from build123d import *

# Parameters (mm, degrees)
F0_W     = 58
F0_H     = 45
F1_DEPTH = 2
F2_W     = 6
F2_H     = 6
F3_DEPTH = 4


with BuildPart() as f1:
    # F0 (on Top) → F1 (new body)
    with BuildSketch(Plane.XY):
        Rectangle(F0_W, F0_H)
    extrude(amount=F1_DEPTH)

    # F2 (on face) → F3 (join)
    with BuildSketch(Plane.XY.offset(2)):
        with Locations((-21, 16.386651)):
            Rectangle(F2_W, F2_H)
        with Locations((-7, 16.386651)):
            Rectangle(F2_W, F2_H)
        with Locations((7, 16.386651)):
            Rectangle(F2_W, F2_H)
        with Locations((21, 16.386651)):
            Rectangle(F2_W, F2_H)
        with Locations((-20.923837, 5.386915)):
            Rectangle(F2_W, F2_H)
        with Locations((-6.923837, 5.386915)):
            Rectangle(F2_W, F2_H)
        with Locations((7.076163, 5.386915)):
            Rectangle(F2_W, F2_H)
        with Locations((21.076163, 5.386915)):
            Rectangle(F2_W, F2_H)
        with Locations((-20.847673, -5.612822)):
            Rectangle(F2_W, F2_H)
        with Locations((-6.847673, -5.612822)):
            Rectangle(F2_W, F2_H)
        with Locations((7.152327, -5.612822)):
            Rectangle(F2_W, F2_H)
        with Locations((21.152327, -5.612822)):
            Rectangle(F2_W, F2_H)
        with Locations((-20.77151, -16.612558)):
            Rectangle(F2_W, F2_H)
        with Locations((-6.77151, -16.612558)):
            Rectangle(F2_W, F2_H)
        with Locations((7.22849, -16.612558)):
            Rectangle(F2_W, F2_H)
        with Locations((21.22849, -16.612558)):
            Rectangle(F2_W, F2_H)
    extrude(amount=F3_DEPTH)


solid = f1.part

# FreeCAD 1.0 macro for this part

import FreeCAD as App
import Part
import Sketcher
from FreeCAD import Vector


def add_polygon(sketch, points):
    """Adds a closed chain of lines whose ends are joined by coincident constraints."""
    first, n = sketch.GeometryCount, len(points)
    for a, b in zip(points, points[1:] + points[:1]):
        sketch.addGeometry(Part.LineSegment(App.Vector(*a, 0), App.Vector(*b, 0)), False)
    for i in range(n):
        sketch.addConstraint(Sketcher.Constraint("Coincident", first + i, 2, first + (i + 1) % n, 1))

doc = App.newDocument("Part")
body = doc.addObject("PartDesign::Body", "Body")

# Sketch on XY plane
sketch1 = doc.addObject("Sketcher::SketchObject", "Sketch")
body.addObject(sketch1)
sketch1.AttachmentSupport = (doc.XY_Plane, [""])
sketch1.MapMode = "FlatFace"
add_polygon(sketch1, [(-29, 22), (-29, -22), (29, -22), (29, 22)])  # lines 0-3
sketch1.addConstraint(Sketcher.Constraint("Vertical", 0))
sketch1.addConstraint(Sketcher.Constraint("Horizontal", 1))
sketch1.addConstraint(Sketcher.Constraint("Vertical", 2))
sketch1.addConstraint(Sketcher.Constraint("Horizontal", 3))
sketch1.addConstraint(Sketcher.Constraint("Symmetric", 0, 2, 2, 2, -1, 1))
sketch1.addConstraint(Sketcher.Constraint("DistanceX", 1, 1, 1, 2, 58.0))
sketch1.addConstraint(Sketcher.Constraint("DistanceY", 0, 2, 0, 1, 45.0))
pad1 = doc.addObject("PartDesign::Pad", "Pad")
body.addObject(pad1)
pad1.Profile = sketch1
pad1.Length = 2

# Sketch on XY plane
sketch2 = doc.addObject("Sketcher::SketchObject", "Sketch001")
body.addObject(sketch2)
sketch2.AttachmentSupport = (doc.XY_Plane, [""])
sketch2.MapMode = "FlatFace"
sketch2.AttachmentOffset = App.Placement(Vector(0, 0, 2), App.Rotation())
add_polygon(sketch2, [(-24, 19), (-24, 13), (-18, 13), (-18, 19)])  # lines 0-3
add_polygon(sketch2, [(-10, 19), (-10, 13), (-4, 13), (-4, 19)])  # lines 4-7
add_polygon(sketch2, [(4, 19), (4, 13), (10, 13), (10, 19)])  # lines 8-11
add_polygon(sketch2, [(18, 19), (18, 13), (24, 13), (24, 19)])  # lines 12-15
add_polygon(sketch2, [(-24, 8), (-24, 2), (-18, 2), (-18, 8)])  # lines 16-19
add_polygon(sketch2, [(-10, 8), (-10, 2), (-4, 2), (-4, 8)])  # lines 20-23
add_polygon(sketch2, [(4, 8), (4, 2), (10, 2), (10, 8)])  # lines 24-27
add_polygon(sketch2, [(18, 8), (18, 2), (24, 2), (24, 8)])  # lines 28-31
add_polygon(sketch2, [(-24, -3), (-24, -9), (-18, -9), (-18, -3)])  # lines 32-35
add_polygon(sketch2, [(-10, -3), (-10, -9), (-4, -9), (-4, -3)])  # lines 36-39
add_polygon(sketch2, [(4, -3), (4, -9), (10, -9), (10, -3)])  # lines 40-43
add_polygon(sketch2, [(18, -3), (18, -9), (24, -9), (24, -3)])  # lines 44-47
add_polygon(sketch2, [(-24, -14), (-24, -20), (-18, -20), (-18, -14)])  # lines 48-51
add_polygon(sketch2, [(-10, -14), (-10, -20), (-4, -20), (-4, -14)])  # lines 52-55
add_polygon(sketch2, [(4, -14), (4, -20), (10, -20), (10, -14)])  # lines 56-59
add_polygon(sketch2, [(18, -14), (18, -20), (24, -20), (24, -14)])  # lines 60-63
sketch2.addConstraint(Sketcher.Constraint("Vertical", 0))
sketch2.addConstraint(Sketcher.Constraint("Horizontal", 1))
sketch2.addConstraint(Sketcher.Constraint("Vertical", 2))
sketch2.addConstraint(Sketcher.Constraint("Horizontal", 3))
sketch2.addConstraint(Sketcher.Constraint("Vertical", 4))
sketch2.addConstraint(Sketcher.Constraint("Horizontal", 5))
sketch2.addConstraint(Sketcher.Constraint("Vertical", 6))
sketch2.addConstraint(Sketcher.Constraint("Horizontal", 7))
sketch2.addConstraint(Sketcher.Constraint("Vertical", 8))
sketch2.addConstraint(Sketcher.Constraint("Horizontal", 9))
sketch2.addConstraint(Sketcher.Constraint("Vertical", 10))
sketch2.addConstraint(Sketcher.Constraint("Horizontal", 11))
sketch2.addConstraint(Sketcher.Constraint("Vertical", 12))
sketch2.addConstraint(Sketcher.Constraint("Horizontal", 13))
sketch2.addConstraint(Sketcher.Constraint("Vertical", 14))
sketch2.addConstraint(Sketcher.Constraint("Horizontal", 15))
sketch2.addConstraint(Sketcher.Constraint("Vertical", 16))
sketch2.addConstraint(Sketcher.Constraint("Horizontal", 17))
sketch2.addConstraint(Sketcher.Constraint("Vertical", 18))
sketch2.addConstraint(Sketcher.Constraint("Horizontal", 19))
sketch2.addConstraint(Sketcher.Constraint("Vertical", 20))
sketch2.addConstraint(Sketcher.Constraint("Horizontal", 21))
sketch2.addConstraint(Sketcher.Constraint("Vertical", 22))
sketch2.addConstraint(Sketcher.Constraint("Horizontal", 23))
sketch2.addConstraint(Sketcher.Constraint("Vertical", 24))
sketch2.addConstraint(Sketcher.Constraint("Horizontal", 25))
sketch2.addConstraint(Sketcher.Constraint("Vertical", 26))
sketch2.addConstraint(Sketcher.Constraint("Horizontal", 27))
sketch2.addConstraint(Sketcher.Constraint("Vertical", 28))
sketch2.addConstraint(Sketcher.Constraint("Horizontal", 29))
sketch2.addConstraint(Sketcher.Constraint("Vertical", 30))
sketch2.addConstraint(Sketcher.Constraint("Horizontal", 31))
sketch2.addConstraint(Sketcher.Constraint("Vertical", 32))
sketch2.addConstraint(Sketcher.Constraint("Horizontal", 33))
sketch2.addConstraint(Sketcher.Constraint("Vertical", 34))
sketch2.addConstraint(Sketcher.Constraint("Horizontal", 35))
sketch2.addConstraint(Sketcher.Constraint("Vertical", 36))
sketch2.addConstraint(Sketcher.Constraint("Horizontal", 37))
sketch2.addConstraint(Sketcher.Constraint("Vertical", 38))
sketch2.addConstraint(Sketcher.Constraint("Horizontal", 39))
sketch2.addConstraint(Sketcher.Constraint("Vertical", 40))
sketch2.addConstraint(Sketcher.Constraint("Horizontal", 41))
sketch2.addConstraint(Sketcher.Constraint("Vertical", 42))
sketch2.addConstraint(Sketcher.Constraint("Horizontal", 43))
sketch2.addConstraint(Sketcher.Constraint("Vertical", 44))
sketch2.addConstraint(Sketcher.Constraint("Horizontal", 45))
sketch2.addConstraint(Sketcher.Constraint("Vertical", 46))
sketch2.addConstraint(Sketcher.Constraint("Horizontal", 47))
sketch2.addConstraint(Sketcher.Constraint("Vertical", 48))
sketch2.addConstraint(Sketcher.Constraint("Horizontal", 49))
sketch2.addConstraint(Sketcher.Constraint("Vertical", 50))
sketch2.addConstraint(Sketcher.Constraint("Horizontal", 51))
sketch2.addConstraint(Sketcher.Constraint("Vertical", 52))
sketch2.addConstraint(Sketcher.Constraint("Horizontal", 53))
sketch2.addConstraint(Sketcher.Constraint("Vertical", 54))
sketch2.addConstraint(Sketcher.Constraint("Horizontal", 55))
sketch2.addConstraint(Sketcher.Constraint("Vertical", 56))
sketch2.addConstraint(Sketcher.Constraint("Horizontal", 57))
sketch2.addConstraint(Sketcher.Constraint("Vertical", 58))
sketch2.addConstraint(Sketcher.Constraint("Horizontal", 59))
sketch2.addConstraint(Sketcher.Constraint("Vertical", 60))
sketch2.addConstraint(Sketcher.Constraint("Horizontal", 61))
sketch2.addConstraint(Sketcher.Constraint("Vertical", 62))
sketch2.addConstraint(Sketcher.Constraint("Horizontal", 63))
sketch2.addConstraint(Sketcher.Constraint("Symmetric", 5, 2, 8, 2, -2))
sketch2.addConstraint(Sketcher.Constraint("Symmetric", 7, 2, 10, 2, -2))
sketch2.addConstraint(Sketcher.Constraint("Symmetric", 1, 2, 12, 2, -2))
sketch2.addConstraint(Sketcher.Constraint("Symmetric", 3, 2, 14, 2, -2))
sketch2.addConstraint(Sketcher.Constraint("Horizontal", 1, 2, 4, 2))
sketch2.addConstraint(Sketcher.Constraint("Horizontal", 3, 2, 6, 2))
sketch2.addConstraint(Sketcher.Constraint("Horizontal", 17, 2, 20, 2))
sketch2.addConstraint(Sketcher.Constraint("Horizontal", 19, 2, 22, 2))
sketch2.addConstraint(Sketcher.Constraint("Horizontal", 21, 2, 24, 2))
sketch2.addConstraint(Sketcher.Constraint("Horizontal", 23, 2, 26, 2))
sketch2.addConstraint(Sketcher.Constraint("Horizontal", 25, 2, 28, 2))
sketch2.addConstraint(Sketcher.Constraint("Horizontal", 27, 2, 30, 2))
sketch2.addConstraint(Sketcher.Constraint("Horizontal", 33, 2, 36, 2))
sketch2.addConstraint(Sketcher.Constraint("Horizontal", 35, 2, 38, 2))
sketch2.addConstraint(Sketcher.Constraint("Horizontal", 37, 2, 40, 2))
sketch2.addConstraint(Sketcher.Constraint("Horizontal", 39, 2, 42, 2))
sketch2.addConstraint(Sketcher.Constraint("Horizontal", 41, 2, 44, 2))
sketch2.addConstraint(Sketcher.Constraint("Horizontal", 43, 2, 46, 2))
sketch2.addConstraint(Sketcher.Constraint("Horizontal", 49, 2, 52, 2))
sketch2.addConstraint(Sketcher.Constraint("Horizontal", 51, 2, 54, 2))
sketch2.addConstraint(Sketcher.Constraint("Horizontal", 53, 2, 56, 2))
sketch2.addConstraint(Sketcher.Constraint("Horizontal", 55, 2, 58, 2))
sketch2.addConstraint(Sketcher.Constraint("Horizontal", 57, 2, 60, 2))
sketch2.addConstraint(Sketcher.Constraint("Horizontal", 59, 2, 62, 2))
sketch2.addConstraint(Sketcher.Constraint("Equal", 3, 5))
sketch2.addConstraint(Sketcher.Constraint("Equal", 15, 17))
sketch2.addConstraint(Sketcher.Constraint("Equal", 19, 21))
sketch2.addConstraint(Sketcher.Constraint("Equal", 23, 25))
sketch2.addConstraint(Sketcher.Constraint("Equal", 27, 29))
sketch2.addConstraint(Sketcher.Constraint("Equal", 31, 33))
sketch2.addConstraint(Sketcher.Constraint("Equal", 35, 37))
sketch2.addConstraint(Sketcher.Constraint("Equal", 39, 41))
sketch2.addConstraint(Sketcher.Constraint("Equal", 43, 45))
sketch2.addConstraint(Sketcher.Constraint("Equal", 47, 49))
sketch2.addConstraint(Sketcher.Constraint("Equal", 51, 53))
sketch2.addConstraint(Sketcher.Constraint("Equal", 55, 57))
sketch2.addConstraint(Sketcher.Constraint("Equal", 59, 61))
sketch2.addConstraint(Sketcher.Constraint("Equal", 63, 0))
sketch2.addConstraint(Sketcher.Constraint("Equal", 14, 16))
sketch2.addConstraint(Sketcher.Constraint("Equal", 30, 32))
sketch2.addConstraint(Sketcher.Constraint("Equal", 46, 48))
sketch2.addConstraint(Sketcher.Constraint("DistanceX", 1, 1, 1, 2, 6.0))
sketch2.addConstraint(Sketcher.Constraint("DistanceX", 0, 2, -1, 1, 24.0))
sketch2.addConstraint(Sketcher.Constraint("DistanceX", 4, 2, -1, 1, 10.0))
sketch2.addConstraint(Sketcher.Constraint("DistanceY", -1, 1, 0, 2, 13.386651))
sketch2.addConstraint(Sketcher.Constraint("DistanceY", 34, 2, -1, 1, 2.612822))
sketch2.addConstraint(Sketcher.Constraint("DistanceX", 48, 2, -1, 1, 23.77151))
sketch2.addConstraint(Sketcher.Constraint("DistanceY", 48, 2, -1, 1, 19.612558))
sketch2.addConstraint(Sketcher.Constraint("DistanceX", 52, 2, -1, 1, 9.77151))
sketch2.addConstraint(Sketcher.Constraint("DistanceX", -1, 1, 56, 2, 4.22849))
sketch2.addConstraint(Sketcher.Constraint("DistanceX", -1, 1, 60, 2, 18.22849))
sketch2.addConstraint(Sketcher.Constraint("DistanceX", 16, 2, -1, 1, 23.923837))
sketch2.addConstraint(Sketcher.Constraint("DistanceY", -1, 1, 16, 2, 2.386915))
sketch2.addConstraint(Sketcher.Constraint("DistanceX", 20, 2, -1, 1, 9.923837))
sketch2.addConstraint(Sketcher.Constraint("DistanceX", -1, 1, 24, 2, 4.076163))
sketch2.addConstraint(Sketcher.Constraint("DistanceX", -1, 1, 28, 2, 18.076163))
sketch2.addConstraint(Sketcher.Constraint("DistanceX", 32, 2, -1, 1, 23.847673))
sketch2.addConstraint(Sketcher.Constraint("DistanceX", 36, 2, -1, 1, 9.847673))
sketch2.addConstraint(Sketcher.Constraint("DistanceX", -1, 1, 40, 2, 4.152327))
sketch2.addConstraint(Sketcher.Constraint("DistanceX", -1, 1, 44, 2, 18.152327))
pad2 = doc.addObject("PartDesign::Pad", "Pad001")
body.addObject(pad2)
pad2.Profile = sketch2
pad2.Length = 4

doc.recompute()
